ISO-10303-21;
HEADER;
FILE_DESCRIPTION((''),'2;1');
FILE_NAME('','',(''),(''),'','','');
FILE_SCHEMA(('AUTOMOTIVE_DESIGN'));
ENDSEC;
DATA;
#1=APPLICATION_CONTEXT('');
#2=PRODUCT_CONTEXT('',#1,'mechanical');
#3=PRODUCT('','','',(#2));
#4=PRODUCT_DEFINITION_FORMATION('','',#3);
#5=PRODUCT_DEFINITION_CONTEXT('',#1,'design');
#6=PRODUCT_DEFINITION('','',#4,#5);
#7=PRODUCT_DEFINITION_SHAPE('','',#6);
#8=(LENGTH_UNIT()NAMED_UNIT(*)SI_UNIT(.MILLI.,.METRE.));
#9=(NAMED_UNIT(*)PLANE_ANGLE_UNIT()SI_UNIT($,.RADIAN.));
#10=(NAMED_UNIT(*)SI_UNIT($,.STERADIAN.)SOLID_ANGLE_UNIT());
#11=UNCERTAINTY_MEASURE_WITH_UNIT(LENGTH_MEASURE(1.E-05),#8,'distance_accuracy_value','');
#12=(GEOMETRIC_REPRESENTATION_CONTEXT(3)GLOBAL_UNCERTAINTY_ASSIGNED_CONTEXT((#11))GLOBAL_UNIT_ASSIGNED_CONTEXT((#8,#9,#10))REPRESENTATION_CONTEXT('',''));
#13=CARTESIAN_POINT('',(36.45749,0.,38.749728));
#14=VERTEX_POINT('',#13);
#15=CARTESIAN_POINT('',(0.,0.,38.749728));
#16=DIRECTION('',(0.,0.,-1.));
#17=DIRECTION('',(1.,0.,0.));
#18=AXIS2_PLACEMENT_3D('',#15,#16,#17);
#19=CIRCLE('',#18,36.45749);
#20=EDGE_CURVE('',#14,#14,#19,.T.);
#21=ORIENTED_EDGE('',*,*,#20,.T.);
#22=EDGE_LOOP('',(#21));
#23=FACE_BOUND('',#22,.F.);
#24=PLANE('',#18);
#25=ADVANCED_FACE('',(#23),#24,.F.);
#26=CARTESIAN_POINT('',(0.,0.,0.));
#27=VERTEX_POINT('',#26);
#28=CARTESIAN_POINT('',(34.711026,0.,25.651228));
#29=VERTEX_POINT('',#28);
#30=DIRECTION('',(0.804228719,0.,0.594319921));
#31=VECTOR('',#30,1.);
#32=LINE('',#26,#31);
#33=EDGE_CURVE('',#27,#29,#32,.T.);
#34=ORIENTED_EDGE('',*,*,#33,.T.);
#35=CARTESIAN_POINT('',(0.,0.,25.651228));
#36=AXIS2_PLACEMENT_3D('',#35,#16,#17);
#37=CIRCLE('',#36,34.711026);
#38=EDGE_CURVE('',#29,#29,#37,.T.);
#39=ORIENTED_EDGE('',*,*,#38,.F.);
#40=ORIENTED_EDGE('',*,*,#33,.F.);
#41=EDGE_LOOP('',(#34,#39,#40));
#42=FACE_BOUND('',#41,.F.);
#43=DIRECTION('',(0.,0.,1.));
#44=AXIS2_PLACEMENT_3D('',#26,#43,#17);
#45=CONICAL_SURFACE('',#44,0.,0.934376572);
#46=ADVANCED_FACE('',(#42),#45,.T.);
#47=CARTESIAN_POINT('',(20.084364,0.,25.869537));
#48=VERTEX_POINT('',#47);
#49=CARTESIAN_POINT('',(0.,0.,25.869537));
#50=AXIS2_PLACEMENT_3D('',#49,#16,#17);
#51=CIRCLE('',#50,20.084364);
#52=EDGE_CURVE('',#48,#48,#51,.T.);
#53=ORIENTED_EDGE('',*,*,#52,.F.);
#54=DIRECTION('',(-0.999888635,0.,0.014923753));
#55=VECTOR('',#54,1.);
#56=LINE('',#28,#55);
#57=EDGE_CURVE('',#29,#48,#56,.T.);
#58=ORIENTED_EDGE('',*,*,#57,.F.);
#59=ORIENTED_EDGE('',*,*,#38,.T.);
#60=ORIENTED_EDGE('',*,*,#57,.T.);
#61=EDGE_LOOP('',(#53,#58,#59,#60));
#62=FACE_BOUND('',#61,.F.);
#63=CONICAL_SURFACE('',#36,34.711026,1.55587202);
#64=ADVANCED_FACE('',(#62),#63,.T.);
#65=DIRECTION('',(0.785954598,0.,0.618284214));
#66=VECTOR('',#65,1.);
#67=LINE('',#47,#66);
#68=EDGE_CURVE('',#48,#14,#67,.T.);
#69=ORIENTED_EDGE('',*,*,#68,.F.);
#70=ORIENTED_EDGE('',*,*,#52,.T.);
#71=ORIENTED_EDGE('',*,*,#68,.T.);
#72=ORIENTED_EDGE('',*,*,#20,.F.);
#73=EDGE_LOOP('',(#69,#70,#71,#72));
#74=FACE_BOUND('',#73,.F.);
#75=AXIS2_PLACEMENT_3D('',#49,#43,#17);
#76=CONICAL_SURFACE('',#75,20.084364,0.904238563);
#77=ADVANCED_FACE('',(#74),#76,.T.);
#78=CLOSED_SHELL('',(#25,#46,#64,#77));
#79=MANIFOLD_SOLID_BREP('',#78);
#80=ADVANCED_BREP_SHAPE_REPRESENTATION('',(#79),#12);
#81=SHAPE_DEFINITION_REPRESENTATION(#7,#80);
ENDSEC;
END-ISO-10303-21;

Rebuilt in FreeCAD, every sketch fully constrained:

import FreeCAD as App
import Part
import Sketcher
Q = App.Units.Quantity


def add_polygon(sketch, points):
    """Adds a closed chain of lines whose ends are joined by coincident constraints."""
    first, n = sketch.GeometryCount, len(points)
    for a, b in zip(points, points[1:] + points[:1]):
        sketch.addGeometry(Part.LineSegment(App.Vector(*a, 0), App.Vector(*b, 0)), False)
    for i in range(n):
        sketch.addConstraint(Sketcher.Constraint("Coincident", first + i, 2, first + (i + 1) % n, 1))

doc = App.newDocument("Part")
params = doc.addObject("Spreadsheet::Sheet", "Params")
for row, (alias, value) in enumerate([
    ("revolution_angle", "360 deg"),
], start=1):
    params.set(f"A{row}", alias)
    params.set(f"B{row}", "=" + value)
    params.setAlias(f"B{row}", alias)

body = doc.addObject("PartDesign::Body", "Body")

# Sketch on XZ plane
sketch1 = body.newObject("Sketcher::SketchObject", "Sketch")
sketch1.AttachmentSupport = (doc.getObject("XZ_Plane"), [""])
sketch1.MapMode = "FlatFace"
add_polygon(sketch1, [(0, 39), (0, 0), (35, 26), (20, 26), (36, 39)])  # lines 0-4
sketch1.addConstraint(Sketcher.Constraint("Vertical", 0))
sketch1.addConstraint(Sketcher.Constraint("Horizontal", 4))
sketch1.addConstraint(Sketcher.Constraint("Coincident", 0, 2, -1, 1))
sketch1.addConstraint(Sketcher.Constraint("DistanceX", 4, 2, 4, 1, Q("36.45749 mm")))
sketch1.addConstraint(Sketcher.Constraint("DistanceY", 1, 2, 3, 2, Q("13.0985 mm")))
sketch1.addConstraint(Sketcher.Constraint("Distance", 1, Q("43.16064 mm")))
sketch1.addConstraint(Sketcher.Constraint("Distance", 2, Q("14.628291 mm")))
sketch1.addConstraint(Sketcher.Constraint("DistanceY", 0, 2, 0, 1, Q("38.749728 mm")))
sketch1.addConstraint(Sketcher.Constraint("DistanceX", 2, 2, 1, 2, Q("14.626662 mm")))
revolution = body.newObject("PartDesign::Revolution", "Revolution")
revolution.Profile = sketch1
revolution.ReferenceAxis = (sketch1, ["V_Axis"])
revolution.setExpression("Angle", "Params.revolution_angle")

doc.recompute()
